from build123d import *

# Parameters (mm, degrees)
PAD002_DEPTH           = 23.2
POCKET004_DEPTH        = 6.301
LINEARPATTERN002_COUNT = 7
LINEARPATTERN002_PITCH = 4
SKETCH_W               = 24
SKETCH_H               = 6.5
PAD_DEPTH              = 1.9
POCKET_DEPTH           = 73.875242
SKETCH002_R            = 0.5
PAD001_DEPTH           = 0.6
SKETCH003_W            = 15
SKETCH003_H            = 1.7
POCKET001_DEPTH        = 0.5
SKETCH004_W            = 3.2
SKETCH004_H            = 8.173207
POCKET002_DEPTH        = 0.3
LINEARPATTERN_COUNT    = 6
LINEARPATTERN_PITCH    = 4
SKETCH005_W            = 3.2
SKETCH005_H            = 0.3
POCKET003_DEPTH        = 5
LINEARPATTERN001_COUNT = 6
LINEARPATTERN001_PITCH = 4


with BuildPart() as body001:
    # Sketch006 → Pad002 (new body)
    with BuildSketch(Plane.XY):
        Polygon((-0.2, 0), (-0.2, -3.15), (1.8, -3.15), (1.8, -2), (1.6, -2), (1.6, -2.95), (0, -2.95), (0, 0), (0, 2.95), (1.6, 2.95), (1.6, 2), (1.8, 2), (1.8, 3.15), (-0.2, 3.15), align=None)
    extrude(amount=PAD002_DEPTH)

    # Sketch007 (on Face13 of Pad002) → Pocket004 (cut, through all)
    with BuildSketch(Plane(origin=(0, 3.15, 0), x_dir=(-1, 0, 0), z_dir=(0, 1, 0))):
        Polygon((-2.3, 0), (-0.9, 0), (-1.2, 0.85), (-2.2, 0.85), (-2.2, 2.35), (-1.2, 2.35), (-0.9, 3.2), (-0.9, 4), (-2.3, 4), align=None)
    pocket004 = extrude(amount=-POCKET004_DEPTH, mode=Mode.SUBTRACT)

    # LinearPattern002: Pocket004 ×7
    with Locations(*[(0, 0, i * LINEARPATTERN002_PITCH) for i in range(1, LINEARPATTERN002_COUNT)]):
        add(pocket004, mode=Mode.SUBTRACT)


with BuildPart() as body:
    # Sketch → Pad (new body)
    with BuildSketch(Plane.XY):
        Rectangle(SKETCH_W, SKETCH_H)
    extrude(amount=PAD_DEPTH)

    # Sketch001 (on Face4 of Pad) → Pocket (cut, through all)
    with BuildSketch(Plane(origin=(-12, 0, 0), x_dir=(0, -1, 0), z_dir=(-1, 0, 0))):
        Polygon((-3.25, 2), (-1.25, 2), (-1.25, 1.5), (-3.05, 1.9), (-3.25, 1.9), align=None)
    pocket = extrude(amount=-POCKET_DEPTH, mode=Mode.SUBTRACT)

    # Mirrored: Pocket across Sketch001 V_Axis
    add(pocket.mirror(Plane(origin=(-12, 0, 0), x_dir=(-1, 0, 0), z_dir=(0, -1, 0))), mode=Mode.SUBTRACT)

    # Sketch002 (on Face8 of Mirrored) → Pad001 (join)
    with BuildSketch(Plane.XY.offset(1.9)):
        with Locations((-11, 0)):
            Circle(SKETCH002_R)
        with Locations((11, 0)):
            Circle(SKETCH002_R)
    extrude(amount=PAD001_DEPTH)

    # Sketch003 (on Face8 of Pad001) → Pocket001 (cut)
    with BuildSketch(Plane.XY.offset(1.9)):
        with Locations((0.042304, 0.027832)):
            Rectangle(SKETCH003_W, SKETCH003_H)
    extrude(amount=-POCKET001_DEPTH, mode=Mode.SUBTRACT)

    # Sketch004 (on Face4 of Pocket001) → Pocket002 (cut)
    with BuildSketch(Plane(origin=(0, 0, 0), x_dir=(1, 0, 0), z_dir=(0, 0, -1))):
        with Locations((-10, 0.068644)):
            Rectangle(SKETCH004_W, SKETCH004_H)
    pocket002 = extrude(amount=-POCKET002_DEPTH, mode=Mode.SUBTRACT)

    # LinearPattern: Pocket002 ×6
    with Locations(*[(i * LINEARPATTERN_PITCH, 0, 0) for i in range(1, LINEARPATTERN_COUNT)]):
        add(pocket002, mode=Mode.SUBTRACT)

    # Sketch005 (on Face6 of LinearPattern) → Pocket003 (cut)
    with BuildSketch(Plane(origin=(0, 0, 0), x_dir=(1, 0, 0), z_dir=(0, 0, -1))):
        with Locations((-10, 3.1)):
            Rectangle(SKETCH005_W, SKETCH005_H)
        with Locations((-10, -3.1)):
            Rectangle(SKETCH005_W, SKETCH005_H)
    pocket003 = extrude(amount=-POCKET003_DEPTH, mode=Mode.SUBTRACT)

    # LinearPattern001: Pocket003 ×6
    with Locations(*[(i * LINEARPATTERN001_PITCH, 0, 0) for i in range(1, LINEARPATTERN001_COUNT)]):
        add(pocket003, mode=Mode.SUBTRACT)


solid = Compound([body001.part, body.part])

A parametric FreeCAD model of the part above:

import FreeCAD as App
import Part
import Sketcher
Q = App.Units.Quantity


def add_polygon(sketch, points):
    """Adds a closed chain of lines whose ends are joined by coincident constraints."""
    first, n = sketch.GeometryCount, len(points)
    for a, b in zip(points, points[1:] + points[:1]):
        sketch.addGeometry(Part.LineSegment(App.Vector(*a, 0), App.Vector(*b, 0)), False)
    for i in range(n):
        sketch.addConstraint(Sketcher.Constraint("Coincident", first + i, 2, first + (i + 1) % n, 1))

doc = App.newDocument("Part")
body = doc.addObject("PartDesign::Body", "Body")

# Sketch on XY plane
sketch1 = body.newObject("Sketcher::SketchObject", "Sketch")
sketch1.AttachmentSupport = (doc.getObject("XY_Plane"), [""])
sketch1.MapMode = "FlatFace"
add_polygon(sketch1, [(-0.2, -3.15), (1.8, -3.15), (1.8, -2), (1.6, -2), (1.6, -2.95), (0, -2.95), (0, 2.95), (1.6, 2.95), (1.6, 2), (1.8, 2), (1.8, 3.15), (-0.2, 3.15)])  # lines 0-11
sketch1.addConstraint([
    Sketcher.Constraint("Horizontal", 0),
    Sketcher.Constraint("Vertical", 1),
    Sketcher.Constraint("Horizontal", 2),
    Sketcher.Constraint("Vertical", 3),
    Sketcher.Constraint("Horizontal", 4),
    Sketcher.Constraint("Vertical", 5),
    Sketcher.Constraint("Horizontal", 6),
    Sketcher.Constraint("Vertical", 7),
    Sketcher.Constraint("Horizontal", 8),
    Sketcher.Constraint("Vertical", 9),
    Sketcher.Constraint("Horizontal", 10),
    Sketcher.Constraint("Vertical", 11),
    Sketcher.Constraint("Symmetric", 4, 2, 5, 2, -1, 1),
    Sketcher.Constraint("Symmetric", 2, 2, 7, 2, -1),
    Sketcher.Constraint("Symmetric", 0, 2, 9, 2, -1),
    Sketcher.Constraint("DistanceX", 0, 1, 0, 2, Q("2 mm")),
    Sketcher.Constraint("DistanceX", 2, 2, 2, 1, Q("0.2 mm")),
    Sketcher.Constraint("DistanceX", 4, 2, 4, 1, Q("1.6 mm")),
    Sketcher.Constraint("DistanceY", 5, 1, 5, 2, Q("5.9 mm")),
    Sketcher.Constraint("DistanceY", 11, 2, 11, 1, Q("6.3 mm")),
    Sketcher.Constraint("DistanceY", 1, 2, -1, 1, Q("2 mm")),
])
pad1 = body.newObject("PartDesign::Pad", "Pad")
pad1.Profile = sketch1
pad1.Length = 23.2

# Sketch on XZ plane
sketch2 = body.newObject("Sketcher::SketchObject", "Sketch001")
sketch2.AttachmentSupport = (doc.getObject("XZ_Plane"), [""])
sketch2.MapMode = "FlatFace"
sketch2.AttachmentOffset = App.Placement(App.Vector(0, 0, -3.15), App.Rotation())
add_polygon(sketch2, [(2.3, 0), (0.9, 0), (1.2, 0.8), (2.2, 0.8), (2.2, 2.4), (1.2, 2.4), (0.9, 3.2), (0.9, 4), (2.3, 4)])  # lines 0-8
sketch2.addConstraint([
    Sketcher.Constraint("Horizontal", 0),
    Sketcher.Constraint("Horizontal", 2),
    Sketcher.Constraint("Vertical", 3),
    Sketcher.Constraint("Horizontal", 4),
    Sketcher.Constraint("Vertical", 6),
    Sketcher.Constraint("Horizontal", 7),
    Sketcher.Constraint("Vertical", 8),
    Sketcher.Constraint("PointOnObject", 0, 2, -1),
    Sketcher.Constraint("Vertical", 1, 2, 4, 2),
    Sketcher.Constraint("Vertical", 0, 2, 5, 2),
    Sketcher.Constraint("Equal", 1, 5),
    Sketcher.Constraint("DistanceX", 2, 1, 2, 2, Q("1 mm")),
    Sketcher.Constraint("DistanceY", 8, 2, 8, 1, Q("4 mm")),
    Sketcher.Constraint("DistanceX", 0, 2, 0, 1, Q("1.4 mm")),
    Sketcher.Constraint("DistanceY", 3, 1, 3, 2, Q("1.5 mm")),
    Sketcher.Constraint("DistanceY", 6, 1, 6, 2, Q("0.8 mm")),
    Sketcher.Constraint("DistanceX", -1, 1, 0, 2, Q("0.9 mm")),
    Sketcher.Constraint("DistanceX", -1, 1, 1, 2, Q("1.2 mm")),
])
pocket1 = body.newObject("PartDesign::Pocket", "Pocket")
pocket1.Profile = sketch2
pocket1.Type = "ThroughAll"
pocket1.Reversed = True
doc.recompute()

linearpattern = body.newObject("PartDesign::LinearPattern", "LinearPattern")
linearpattern.Originals = [pocket1]
linearpattern.Direction = (doc.getObject("Z_Axis"), [""])
linearpattern.Mode = "offset"
linearpattern.Offset = 4
linearpattern.Occurrences = 7
body.Tip = linearpattern
body2 = doc.addObject("PartDesign::Body", "Body001")

# Sketch on XY plane
sketch3 = body2.newObject("Sketcher::SketchObject", "Sketch002")
sketch3.AttachmentSupport = (doc.getObject("XY_Plane001"), [""])
sketch3.MapMode = "FlatFace"
add_polygon(sketch3, [(-12, 3), (-12, -3), (12, -3), (12, 3)])  # lines 0-3
sketch3.addConstraint([
    Sketcher.Constraint("Vertical", 0),
    Sketcher.Constraint("Horizontal", 1),
    Sketcher.Constraint("Vertical", 2),
    Sketcher.Constraint("Horizontal", 3),
    Sketcher.Constraint("Symmetric", 0, 2, 2, 2, -1, 1),
    Sketcher.Constraint("DistanceX", 1, 1, 1, 2, Q("24 mm")),
    Sketcher.Constraint("DistanceY", 0, 2, 0, 1, Q("6.5 mm")),
])
pad2 = body2.newObject("PartDesign::Pad", "Pad001")
pad2.Profile = sketch3
pad2.Length = 1.9

# Sketch on YZ plane
sketch4 = body2.newObject("Sketcher::SketchObject", "Sketch003")
sketch4.AttachmentSupport = (doc.getObject("YZ_Plane001"), [""])
sketch4.MapMode = "FlatFace"
sketch4.AttachmentOffset = App.Placement(App.Vector(0, 0, -12), App.Rotation())
add_polygon(sketch4, [(1.25, 2), (3.25, 2), (3.25, 1.9), (3.05, 1.9), (1.25, 1.5)])  # lines 0-4
sketch4.addConstraint([
    Sketcher.Constraint("Horizontal", 0),
    Sketcher.Constraint("Vertical", 1),
    Sketcher.Constraint("Horizontal", 2),
    Sketcher.Constraint("Vertical", 4),
    Sketcher.Constraint("DistanceX", 0, 1, 0, 2, Q("2 mm")),
    Sketcher.Constraint("DistanceX", 2, 2, 2, 1, Q("0.2 mm")),
    Sketcher.Constraint("DistanceY", 1, 2, 1, 1, Q("0.1 mm")),
    Sketcher.Constraint("DistanceY", 4, 1, 4, 2, Q("0.5 mm")),
    Sketcher.Constraint("DistanceY", -1, 1, 0, 2, Q("2 mm")),
    Sketcher.Constraint("DistanceX", -1, 1, 0, 2, Q("3.25 mm")),
])
pocket2 = body2.newObject("PartDesign::Pocket", "Pocket001")
pocket2.Profile = sketch4
pocket2.Type = "ThroughAll"
pocket2.Reversed = True
doc.recompute()

mirrored = body2.newObject("PartDesign::Mirrored", "Mirrored")
mirrored.Originals = [pocket2]
mirrored.MirrorPlane = (doc.getObject("XZ_Plane001"), [""])
body2.Tip = mirrored

# Sketch on XY plane
sketch5 = body2.newObject("Sketcher::SketchObject", "Sketch004")
sketch5.AttachmentSupport = (doc.getObject("XY_Plane001"), [""])
sketch5.MapMode = "FlatFace"
sketch5.AttachmentOffset = App.Placement(App.Vector(0, 0, 1.9), App.Rotation())
sketch5.addGeometry([
    Part.Circle(App.Vector(-11, 0, 0), App.Vector(0, 0, 1), 0.5),
    Part.Circle(App.Vector(11, 0, 0), App.Vector(0, 0, 1), 0.5),
], False)
sketch5.addConstraint([
    Sketcher.Constraint("Equal", 0, 1),
    Sketcher.Constraint("Symmetric", 0, 3, 1, 3, -1, 1),
    Sketcher.Constraint("PointOnObject", 0, 3, -1),
    Sketcher.Constraint("Diameter", 0, Q("1 mm")),
    Sketcher.Constraint("DistanceX", 0, 3, -1, 1, Q("11 mm")),
])
pad3 = body2.newObject("PartDesign::Pad", "Pad002")
pad3.Profile = sketch5
pad3.Length = 0.6

# Sketch on XY plane
sketch6 = body2.newObject("Sketcher::SketchObject", "Sketch005")
sketch6.AttachmentSupport = (doc.getObject("XY_Plane001"), [""])
sketch6.MapMode = "FlatFace"
sketch6.AttachmentOffset = App.Placement(App.Vector(0, 0, 1.9), App.Rotation())
add_polygon(sketch6, [(-7.5, 0.9), (-7.5, -0.8), (7.5, -0.8), (7.5, 0.9)])  # lines 0-3
sketch6.addConstraint([
    Sketcher.Constraint("Vertical", 0),
    Sketcher.Constraint("Horizontal", 1),
    Sketcher.Constraint("Vertical", 2),
    Sketcher.Constraint("Horizontal", 3),
    Sketcher.Constraint("DistanceX", 1, 1, 1, 2, Q("15 mm")),
    Sketcher.Constraint("DistanceY", 0, 2, 0, 1, Q("1.7 mm")),
    Sketcher.Constraint("DistanceY", 0, 2, -1, 1, Q("0.822168 mm")),
    Sketcher.Constraint("DistanceX", 0, 2, -1, 1, Q("7.457696 mm")),
])
pocket3 = body2.newObject("PartDesign::Pocket", "Pocket002")
pocket3.Profile = sketch6
pocket3.Length = 0.5

# Sketch on XY plane
sketch7 = body2.newObject("Sketcher::SketchObject", "Sketch006")
sketch7.AttachmentSupport = (doc.getObject("XY_Plane001"), [""])
sketch7.MapMode = "FlatFace"
add_polygon(sketch7, [(-11.6, -4.2), (-11.6, 4), (-8.4, 4), (-8.4, -4.2)])  # lines 0-3
sketch7.addConstraint([
    Sketcher.Constraint("Vertical", 0),
    Sketcher.Constraint("Horizontal", 1),
    Sketcher.Constraint("Vertical", 2),
    Sketcher.Constraint("Horizontal", 3),
    Sketcher.Constraint("DistanceX", 1, 1, 1, 2, Q("3.2 mm")),
    Sketcher.Constraint("DistanceX", 0, 2, -1, 1, Q("11.6 mm")),
    Sketcher.Constraint("DistanceY", 0, 1, 0, 2, Q("8.173207 mm")),
    Sketcher.Constraint("DistanceY", -1, 1, 0, 2, Q("4.017959 mm")),
])
pocket4 = body2.newObject("PartDesign::Pocket", "Pocket003")
pocket4.Profile = sketch7
pocket4.Length = 0.3
pocket4.Reversed = True
doc.recompute()

linearpattern2 = body2.newObject("PartDesign::LinearPattern", "LinearPattern001")
linearpattern2.Originals = [pocket4]
linearpattern2.Direction = (doc.getObject("X_Axis001"), [""])
linearpattern2.Mode = "offset"
linearpattern2.Offset = 4
linearpattern2.Occurrences = 6
body2.Tip = linearpattern2

# Sketch on XY plane
sketch8 = body2.newObject("Sketcher::SketchObject", "Sketch007")
sketch8.AttachmentSupport = (doc.getObject("XY_Plane001"), [""])
sketch8.MapMode = "FlatFace"
add_polygon(sketch8, [(-11.6, -3.25), (-11.6, -2.95), (-8.4, -2.95), (-8.4, -3.25)])  # lines 0-3
add_polygon(sketch8, [(-11.6, 2.95), (-11.6, 3.25), (-8.4, 3.25), (-8.4, 2.95)])  # lines 4-7
sketch8.addConstraint([
    Sketcher.Constraint("Vertical", 0),
    Sketcher.Constraint("Horizontal", 1),
    Sketcher.Constraint("Vertical", 2),
    Sketcher.Constraint("Horizontal", 3),
    Sketcher.Constraint("Vertical", 4),
    Sketcher.Constraint("Horizontal", 5),
    Sketcher.Constraint("Vertical", 6),
    Sketcher.Constraint("Horizontal", 7),
    Sketcher.Constraint("Symmetric", 3, 2, 4, 2, -1),
    Sketcher.Constraint("Symmetric", 1, 2, 6, 2, -1),
    Sketcher.Constraint("DistanceX", 1, 1, 1, 2, Q("3.2 mm")),
    Sketcher.Constraint("DistanceY", 0, 1, 0, 2, Q("0.3 mm")),
    Sketcher.Constraint("DistanceX", 0, 2, -1, 1, Q("11.6 mm")),
    Sketcher.Constraint("DistanceY", 0, 2, 4, 2, Q("6.2 mm")),
])
pocket5 = body2.newObject("PartDesign::Pocket", "Pocket004")
pocket5.Profile = sketch8
pocket5.Length = 5
pocket5.Reversed = True
doc.recompute()

linearpattern3 = body2.newObject("PartDesign::LinearPattern", "LinearPattern002")
linearpattern3.Originals = [pocket5]
linearpattern3.Direction = (doc.getObject("X_Axis001"), [""])
linearpattern3.Mode = "offset"
linearpattern3.Offset = 4
linearpattern3.Occurrences = 6
body2.Tip = linearpattern3

doc.recompute()
